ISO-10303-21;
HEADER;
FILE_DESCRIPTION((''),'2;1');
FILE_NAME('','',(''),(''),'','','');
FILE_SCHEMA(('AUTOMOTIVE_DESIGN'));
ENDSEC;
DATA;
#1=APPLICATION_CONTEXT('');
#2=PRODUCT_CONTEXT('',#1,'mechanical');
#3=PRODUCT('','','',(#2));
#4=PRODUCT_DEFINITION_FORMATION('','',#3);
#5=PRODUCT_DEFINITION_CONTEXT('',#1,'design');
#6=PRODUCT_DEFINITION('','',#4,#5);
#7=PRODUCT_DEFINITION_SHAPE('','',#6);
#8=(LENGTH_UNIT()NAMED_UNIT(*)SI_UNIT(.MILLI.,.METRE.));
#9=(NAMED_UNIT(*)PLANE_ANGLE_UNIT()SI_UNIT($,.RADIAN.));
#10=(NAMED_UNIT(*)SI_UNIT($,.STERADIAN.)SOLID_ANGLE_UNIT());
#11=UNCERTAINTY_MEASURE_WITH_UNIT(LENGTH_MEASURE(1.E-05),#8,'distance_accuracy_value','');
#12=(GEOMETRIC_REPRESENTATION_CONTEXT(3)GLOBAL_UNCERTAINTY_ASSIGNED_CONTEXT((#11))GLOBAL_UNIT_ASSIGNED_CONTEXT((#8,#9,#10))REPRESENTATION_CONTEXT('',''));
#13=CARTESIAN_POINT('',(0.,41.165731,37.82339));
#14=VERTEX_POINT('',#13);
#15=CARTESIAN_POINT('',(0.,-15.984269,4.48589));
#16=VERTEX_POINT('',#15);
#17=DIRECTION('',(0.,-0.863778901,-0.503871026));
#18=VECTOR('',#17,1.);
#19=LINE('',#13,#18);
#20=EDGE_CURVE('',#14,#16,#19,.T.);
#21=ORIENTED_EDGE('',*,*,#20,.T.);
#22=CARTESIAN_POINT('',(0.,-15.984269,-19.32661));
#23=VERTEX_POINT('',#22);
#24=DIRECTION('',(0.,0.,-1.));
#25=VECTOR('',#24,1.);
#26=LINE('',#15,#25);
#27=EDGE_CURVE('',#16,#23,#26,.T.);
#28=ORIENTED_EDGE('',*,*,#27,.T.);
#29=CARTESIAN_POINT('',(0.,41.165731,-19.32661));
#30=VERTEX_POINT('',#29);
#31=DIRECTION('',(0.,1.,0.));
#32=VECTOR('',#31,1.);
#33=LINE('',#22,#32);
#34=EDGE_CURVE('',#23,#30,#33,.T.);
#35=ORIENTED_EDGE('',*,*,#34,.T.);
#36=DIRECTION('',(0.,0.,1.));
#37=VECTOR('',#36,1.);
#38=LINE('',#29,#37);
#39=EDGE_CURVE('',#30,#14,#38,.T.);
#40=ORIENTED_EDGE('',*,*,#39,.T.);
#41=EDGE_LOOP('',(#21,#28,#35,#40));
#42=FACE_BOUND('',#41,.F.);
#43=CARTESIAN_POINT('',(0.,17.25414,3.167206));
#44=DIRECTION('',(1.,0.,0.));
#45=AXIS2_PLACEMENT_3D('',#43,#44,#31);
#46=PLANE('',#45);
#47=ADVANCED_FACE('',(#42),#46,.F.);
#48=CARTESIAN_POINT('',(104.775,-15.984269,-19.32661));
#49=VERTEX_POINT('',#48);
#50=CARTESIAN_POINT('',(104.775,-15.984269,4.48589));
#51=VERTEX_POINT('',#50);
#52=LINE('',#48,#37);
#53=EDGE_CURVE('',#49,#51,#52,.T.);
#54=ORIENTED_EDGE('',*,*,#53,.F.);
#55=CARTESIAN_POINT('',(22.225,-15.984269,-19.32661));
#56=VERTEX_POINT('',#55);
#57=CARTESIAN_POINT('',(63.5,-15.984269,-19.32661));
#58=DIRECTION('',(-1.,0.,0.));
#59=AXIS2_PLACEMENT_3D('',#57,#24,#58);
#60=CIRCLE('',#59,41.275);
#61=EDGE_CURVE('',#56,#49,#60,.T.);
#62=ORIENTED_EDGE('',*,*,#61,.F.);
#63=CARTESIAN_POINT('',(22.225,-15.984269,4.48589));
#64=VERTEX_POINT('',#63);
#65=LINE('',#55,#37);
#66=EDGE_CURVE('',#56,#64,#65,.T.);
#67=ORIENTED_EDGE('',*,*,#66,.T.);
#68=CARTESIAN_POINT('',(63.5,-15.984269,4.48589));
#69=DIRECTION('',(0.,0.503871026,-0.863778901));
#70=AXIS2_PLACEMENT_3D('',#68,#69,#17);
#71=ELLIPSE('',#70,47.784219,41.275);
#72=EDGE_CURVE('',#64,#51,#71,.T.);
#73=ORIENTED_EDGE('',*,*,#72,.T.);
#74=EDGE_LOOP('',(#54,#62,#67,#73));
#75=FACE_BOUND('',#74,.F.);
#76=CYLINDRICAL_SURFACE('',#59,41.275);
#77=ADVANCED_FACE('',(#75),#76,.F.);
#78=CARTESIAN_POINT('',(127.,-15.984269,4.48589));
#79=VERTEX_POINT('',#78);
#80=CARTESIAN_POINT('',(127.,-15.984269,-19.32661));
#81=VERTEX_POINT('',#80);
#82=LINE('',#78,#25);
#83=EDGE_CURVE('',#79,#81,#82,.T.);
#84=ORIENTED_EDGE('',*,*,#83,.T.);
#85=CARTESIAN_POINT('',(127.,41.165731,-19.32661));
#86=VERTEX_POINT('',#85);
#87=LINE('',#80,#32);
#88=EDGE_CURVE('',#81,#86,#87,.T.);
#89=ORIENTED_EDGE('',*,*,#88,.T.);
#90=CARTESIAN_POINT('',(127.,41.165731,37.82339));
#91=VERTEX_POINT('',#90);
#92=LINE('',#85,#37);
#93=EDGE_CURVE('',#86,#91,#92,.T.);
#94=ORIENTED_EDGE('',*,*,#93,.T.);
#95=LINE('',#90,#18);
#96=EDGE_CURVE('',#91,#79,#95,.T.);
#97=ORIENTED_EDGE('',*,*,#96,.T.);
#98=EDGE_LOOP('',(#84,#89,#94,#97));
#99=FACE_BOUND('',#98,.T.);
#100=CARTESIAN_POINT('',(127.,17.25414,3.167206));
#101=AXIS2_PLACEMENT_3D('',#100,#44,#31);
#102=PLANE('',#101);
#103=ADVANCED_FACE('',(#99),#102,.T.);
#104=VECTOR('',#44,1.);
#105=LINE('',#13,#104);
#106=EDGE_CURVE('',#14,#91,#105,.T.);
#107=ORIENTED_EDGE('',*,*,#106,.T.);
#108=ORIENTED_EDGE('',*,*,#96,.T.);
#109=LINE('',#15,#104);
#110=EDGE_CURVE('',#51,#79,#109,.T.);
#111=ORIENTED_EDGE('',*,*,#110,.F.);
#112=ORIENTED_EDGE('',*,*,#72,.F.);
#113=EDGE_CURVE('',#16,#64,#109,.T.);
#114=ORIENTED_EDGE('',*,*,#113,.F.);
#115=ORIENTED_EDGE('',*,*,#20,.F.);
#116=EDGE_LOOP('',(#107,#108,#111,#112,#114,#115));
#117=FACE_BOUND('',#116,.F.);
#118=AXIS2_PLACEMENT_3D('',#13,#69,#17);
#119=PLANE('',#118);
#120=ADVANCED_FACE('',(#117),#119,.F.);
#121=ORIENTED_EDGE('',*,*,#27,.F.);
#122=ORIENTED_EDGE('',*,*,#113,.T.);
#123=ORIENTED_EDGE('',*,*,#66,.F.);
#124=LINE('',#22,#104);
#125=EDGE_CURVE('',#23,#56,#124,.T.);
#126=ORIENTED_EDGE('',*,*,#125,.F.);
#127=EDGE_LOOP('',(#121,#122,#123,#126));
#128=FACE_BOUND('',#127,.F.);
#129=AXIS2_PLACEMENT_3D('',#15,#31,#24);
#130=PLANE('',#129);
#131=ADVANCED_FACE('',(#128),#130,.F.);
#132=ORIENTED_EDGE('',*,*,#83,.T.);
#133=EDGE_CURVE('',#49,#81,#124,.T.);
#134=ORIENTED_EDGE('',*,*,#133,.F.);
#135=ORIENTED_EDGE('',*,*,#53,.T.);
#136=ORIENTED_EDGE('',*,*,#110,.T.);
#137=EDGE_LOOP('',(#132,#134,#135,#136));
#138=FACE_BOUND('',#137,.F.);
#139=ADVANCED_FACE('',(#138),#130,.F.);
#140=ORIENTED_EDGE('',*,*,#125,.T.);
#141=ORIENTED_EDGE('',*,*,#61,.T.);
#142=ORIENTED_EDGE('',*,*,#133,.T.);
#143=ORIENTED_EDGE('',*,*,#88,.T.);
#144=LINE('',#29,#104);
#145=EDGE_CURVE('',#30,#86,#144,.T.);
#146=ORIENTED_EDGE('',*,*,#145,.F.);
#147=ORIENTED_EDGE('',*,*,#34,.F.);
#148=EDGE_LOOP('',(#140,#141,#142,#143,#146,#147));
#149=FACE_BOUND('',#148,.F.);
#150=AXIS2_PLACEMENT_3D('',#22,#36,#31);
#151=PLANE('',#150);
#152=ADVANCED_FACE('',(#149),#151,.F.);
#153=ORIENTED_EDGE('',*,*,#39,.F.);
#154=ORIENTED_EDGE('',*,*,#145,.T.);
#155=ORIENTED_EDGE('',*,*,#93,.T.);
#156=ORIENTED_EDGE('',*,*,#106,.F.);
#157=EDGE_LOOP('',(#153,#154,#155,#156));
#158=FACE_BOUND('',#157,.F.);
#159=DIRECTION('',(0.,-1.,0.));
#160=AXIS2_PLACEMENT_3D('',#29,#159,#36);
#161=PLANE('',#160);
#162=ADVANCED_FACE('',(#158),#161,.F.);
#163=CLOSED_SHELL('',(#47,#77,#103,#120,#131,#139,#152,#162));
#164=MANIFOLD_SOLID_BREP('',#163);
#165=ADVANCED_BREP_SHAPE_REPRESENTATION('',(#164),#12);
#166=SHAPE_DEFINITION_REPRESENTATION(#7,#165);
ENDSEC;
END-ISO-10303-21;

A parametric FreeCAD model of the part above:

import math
import FreeCAD as App
import Part
import Sketcher
Q = App.Units.Quantity


def add_polygon(sketch, points):
    """Adds a closed chain of lines whose ends are joined by coincident constraints."""
    first, n = sketch.GeometryCount, len(points)
    for a, b in zip(points, points[1:] + points[:1]):
        sketch.addGeometry(Part.LineSegment(App.Vector(*a, 0), App.Vector(*b, 0)), False)
    for i in range(n):
        sketch.addConstraint(Sketcher.Constraint("Coincident", first + i, 2, first + (i + 1) % n, 1))

doc = App.newDocument("Part")
body = doc.addObject("PartDesign::Body", "Body")

# Sketch on YZ plane
sketch1 = doc.addObject("Sketcher::SketchObject", "Sketch")
body.addObject(sketch1)
sketch1.AttachmentSupport = (doc.YZ_Plane, [""])
sketch1.MapMode = "FlatFace"
add_polygon(sketch1, [(41.165731, 37.82339), (-15.984269, 4.48589), (-15.984269, -19.32661), (41.165731, -19.32661)])  # lines 0-3
sketch1.addConstraint([
    Sketcher.Constraint("Vertical", 1),
    Sketcher.Constraint("Horizontal", 2),
    Sketcher.Constraint("Vertical", 3),
    Sketcher.Constraint("Equal", 2, 3),
    Sketcher.Constraint("DistanceX", 2, 1, 2, 2, Q("2.25 in")),
    Sketcher.Constraint("DistanceY", 1, 2, 1, 1, Q("0.9375 in")),
    Sketcher.Constraint("DistanceX", 0, 2, -1, 1, 15.984269),
    Sketcher.Constraint("DistanceY", -1, 1, 0, 2, 4.48589),
])
pad1 = doc.addObject("PartDesign::Pad", "Pad")
body.addObject(pad1)
pad1.Profile = sketch1
pad1.Length = Q("5 in")

# Sketch on XY plane
sketch2 = doc.addObject("Sketcher::SketchObject", "Sketch001")
body.addObject(sketch2)
sketch2.AttachmentSupport = (doc.XY_Plane, [""])
sketch2.MapMode = "FlatFace"
sketch2.AttachmentOffset = App.Placement(App.Vector(0, 0, -19.32661), App.Rotation())
sketch2.addGeometry([
    Part.LineSegment(App.Vector(104.775, -15.984269, 0), App.Vector(22.225, -15.984269, 0)),
    Part.ArcOfCircle(Part.Circle(App.Vector(63.5, -15.984269, 0), App.Vector(0, 0, 1), 41.275), math.radians(0), math.radians(180)),
], False)
sketch2.addConstraint([
    Sketcher.Constraint("Coincident", 0, 1, 1, 1),
    Sketcher.Constraint("Coincident", 1, 2, 0, 2),
    Sketcher.Constraint("Horizontal", 0),
    Sketcher.Constraint("Horizontal", 1, 3, 0, 1),
    Sketcher.Constraint("Radius", 1, Q("1.625 in")),
    Sketcher.Constraint("DistanceX", -1, 1, 1, 3, Q("2.5 in")),
    Sketcher.Constraint("DistanceY", 1, 3, -1, 1, 15.984269),
])
pocket1 = doc.addObject("PartDesign::Pocket", "Pocket")
body.addObject(pocket1)
pocket1.Profile = sketch2
pocket1.Length = Q("5 in")
pocket1.Reversed = True

doc.recompute()
